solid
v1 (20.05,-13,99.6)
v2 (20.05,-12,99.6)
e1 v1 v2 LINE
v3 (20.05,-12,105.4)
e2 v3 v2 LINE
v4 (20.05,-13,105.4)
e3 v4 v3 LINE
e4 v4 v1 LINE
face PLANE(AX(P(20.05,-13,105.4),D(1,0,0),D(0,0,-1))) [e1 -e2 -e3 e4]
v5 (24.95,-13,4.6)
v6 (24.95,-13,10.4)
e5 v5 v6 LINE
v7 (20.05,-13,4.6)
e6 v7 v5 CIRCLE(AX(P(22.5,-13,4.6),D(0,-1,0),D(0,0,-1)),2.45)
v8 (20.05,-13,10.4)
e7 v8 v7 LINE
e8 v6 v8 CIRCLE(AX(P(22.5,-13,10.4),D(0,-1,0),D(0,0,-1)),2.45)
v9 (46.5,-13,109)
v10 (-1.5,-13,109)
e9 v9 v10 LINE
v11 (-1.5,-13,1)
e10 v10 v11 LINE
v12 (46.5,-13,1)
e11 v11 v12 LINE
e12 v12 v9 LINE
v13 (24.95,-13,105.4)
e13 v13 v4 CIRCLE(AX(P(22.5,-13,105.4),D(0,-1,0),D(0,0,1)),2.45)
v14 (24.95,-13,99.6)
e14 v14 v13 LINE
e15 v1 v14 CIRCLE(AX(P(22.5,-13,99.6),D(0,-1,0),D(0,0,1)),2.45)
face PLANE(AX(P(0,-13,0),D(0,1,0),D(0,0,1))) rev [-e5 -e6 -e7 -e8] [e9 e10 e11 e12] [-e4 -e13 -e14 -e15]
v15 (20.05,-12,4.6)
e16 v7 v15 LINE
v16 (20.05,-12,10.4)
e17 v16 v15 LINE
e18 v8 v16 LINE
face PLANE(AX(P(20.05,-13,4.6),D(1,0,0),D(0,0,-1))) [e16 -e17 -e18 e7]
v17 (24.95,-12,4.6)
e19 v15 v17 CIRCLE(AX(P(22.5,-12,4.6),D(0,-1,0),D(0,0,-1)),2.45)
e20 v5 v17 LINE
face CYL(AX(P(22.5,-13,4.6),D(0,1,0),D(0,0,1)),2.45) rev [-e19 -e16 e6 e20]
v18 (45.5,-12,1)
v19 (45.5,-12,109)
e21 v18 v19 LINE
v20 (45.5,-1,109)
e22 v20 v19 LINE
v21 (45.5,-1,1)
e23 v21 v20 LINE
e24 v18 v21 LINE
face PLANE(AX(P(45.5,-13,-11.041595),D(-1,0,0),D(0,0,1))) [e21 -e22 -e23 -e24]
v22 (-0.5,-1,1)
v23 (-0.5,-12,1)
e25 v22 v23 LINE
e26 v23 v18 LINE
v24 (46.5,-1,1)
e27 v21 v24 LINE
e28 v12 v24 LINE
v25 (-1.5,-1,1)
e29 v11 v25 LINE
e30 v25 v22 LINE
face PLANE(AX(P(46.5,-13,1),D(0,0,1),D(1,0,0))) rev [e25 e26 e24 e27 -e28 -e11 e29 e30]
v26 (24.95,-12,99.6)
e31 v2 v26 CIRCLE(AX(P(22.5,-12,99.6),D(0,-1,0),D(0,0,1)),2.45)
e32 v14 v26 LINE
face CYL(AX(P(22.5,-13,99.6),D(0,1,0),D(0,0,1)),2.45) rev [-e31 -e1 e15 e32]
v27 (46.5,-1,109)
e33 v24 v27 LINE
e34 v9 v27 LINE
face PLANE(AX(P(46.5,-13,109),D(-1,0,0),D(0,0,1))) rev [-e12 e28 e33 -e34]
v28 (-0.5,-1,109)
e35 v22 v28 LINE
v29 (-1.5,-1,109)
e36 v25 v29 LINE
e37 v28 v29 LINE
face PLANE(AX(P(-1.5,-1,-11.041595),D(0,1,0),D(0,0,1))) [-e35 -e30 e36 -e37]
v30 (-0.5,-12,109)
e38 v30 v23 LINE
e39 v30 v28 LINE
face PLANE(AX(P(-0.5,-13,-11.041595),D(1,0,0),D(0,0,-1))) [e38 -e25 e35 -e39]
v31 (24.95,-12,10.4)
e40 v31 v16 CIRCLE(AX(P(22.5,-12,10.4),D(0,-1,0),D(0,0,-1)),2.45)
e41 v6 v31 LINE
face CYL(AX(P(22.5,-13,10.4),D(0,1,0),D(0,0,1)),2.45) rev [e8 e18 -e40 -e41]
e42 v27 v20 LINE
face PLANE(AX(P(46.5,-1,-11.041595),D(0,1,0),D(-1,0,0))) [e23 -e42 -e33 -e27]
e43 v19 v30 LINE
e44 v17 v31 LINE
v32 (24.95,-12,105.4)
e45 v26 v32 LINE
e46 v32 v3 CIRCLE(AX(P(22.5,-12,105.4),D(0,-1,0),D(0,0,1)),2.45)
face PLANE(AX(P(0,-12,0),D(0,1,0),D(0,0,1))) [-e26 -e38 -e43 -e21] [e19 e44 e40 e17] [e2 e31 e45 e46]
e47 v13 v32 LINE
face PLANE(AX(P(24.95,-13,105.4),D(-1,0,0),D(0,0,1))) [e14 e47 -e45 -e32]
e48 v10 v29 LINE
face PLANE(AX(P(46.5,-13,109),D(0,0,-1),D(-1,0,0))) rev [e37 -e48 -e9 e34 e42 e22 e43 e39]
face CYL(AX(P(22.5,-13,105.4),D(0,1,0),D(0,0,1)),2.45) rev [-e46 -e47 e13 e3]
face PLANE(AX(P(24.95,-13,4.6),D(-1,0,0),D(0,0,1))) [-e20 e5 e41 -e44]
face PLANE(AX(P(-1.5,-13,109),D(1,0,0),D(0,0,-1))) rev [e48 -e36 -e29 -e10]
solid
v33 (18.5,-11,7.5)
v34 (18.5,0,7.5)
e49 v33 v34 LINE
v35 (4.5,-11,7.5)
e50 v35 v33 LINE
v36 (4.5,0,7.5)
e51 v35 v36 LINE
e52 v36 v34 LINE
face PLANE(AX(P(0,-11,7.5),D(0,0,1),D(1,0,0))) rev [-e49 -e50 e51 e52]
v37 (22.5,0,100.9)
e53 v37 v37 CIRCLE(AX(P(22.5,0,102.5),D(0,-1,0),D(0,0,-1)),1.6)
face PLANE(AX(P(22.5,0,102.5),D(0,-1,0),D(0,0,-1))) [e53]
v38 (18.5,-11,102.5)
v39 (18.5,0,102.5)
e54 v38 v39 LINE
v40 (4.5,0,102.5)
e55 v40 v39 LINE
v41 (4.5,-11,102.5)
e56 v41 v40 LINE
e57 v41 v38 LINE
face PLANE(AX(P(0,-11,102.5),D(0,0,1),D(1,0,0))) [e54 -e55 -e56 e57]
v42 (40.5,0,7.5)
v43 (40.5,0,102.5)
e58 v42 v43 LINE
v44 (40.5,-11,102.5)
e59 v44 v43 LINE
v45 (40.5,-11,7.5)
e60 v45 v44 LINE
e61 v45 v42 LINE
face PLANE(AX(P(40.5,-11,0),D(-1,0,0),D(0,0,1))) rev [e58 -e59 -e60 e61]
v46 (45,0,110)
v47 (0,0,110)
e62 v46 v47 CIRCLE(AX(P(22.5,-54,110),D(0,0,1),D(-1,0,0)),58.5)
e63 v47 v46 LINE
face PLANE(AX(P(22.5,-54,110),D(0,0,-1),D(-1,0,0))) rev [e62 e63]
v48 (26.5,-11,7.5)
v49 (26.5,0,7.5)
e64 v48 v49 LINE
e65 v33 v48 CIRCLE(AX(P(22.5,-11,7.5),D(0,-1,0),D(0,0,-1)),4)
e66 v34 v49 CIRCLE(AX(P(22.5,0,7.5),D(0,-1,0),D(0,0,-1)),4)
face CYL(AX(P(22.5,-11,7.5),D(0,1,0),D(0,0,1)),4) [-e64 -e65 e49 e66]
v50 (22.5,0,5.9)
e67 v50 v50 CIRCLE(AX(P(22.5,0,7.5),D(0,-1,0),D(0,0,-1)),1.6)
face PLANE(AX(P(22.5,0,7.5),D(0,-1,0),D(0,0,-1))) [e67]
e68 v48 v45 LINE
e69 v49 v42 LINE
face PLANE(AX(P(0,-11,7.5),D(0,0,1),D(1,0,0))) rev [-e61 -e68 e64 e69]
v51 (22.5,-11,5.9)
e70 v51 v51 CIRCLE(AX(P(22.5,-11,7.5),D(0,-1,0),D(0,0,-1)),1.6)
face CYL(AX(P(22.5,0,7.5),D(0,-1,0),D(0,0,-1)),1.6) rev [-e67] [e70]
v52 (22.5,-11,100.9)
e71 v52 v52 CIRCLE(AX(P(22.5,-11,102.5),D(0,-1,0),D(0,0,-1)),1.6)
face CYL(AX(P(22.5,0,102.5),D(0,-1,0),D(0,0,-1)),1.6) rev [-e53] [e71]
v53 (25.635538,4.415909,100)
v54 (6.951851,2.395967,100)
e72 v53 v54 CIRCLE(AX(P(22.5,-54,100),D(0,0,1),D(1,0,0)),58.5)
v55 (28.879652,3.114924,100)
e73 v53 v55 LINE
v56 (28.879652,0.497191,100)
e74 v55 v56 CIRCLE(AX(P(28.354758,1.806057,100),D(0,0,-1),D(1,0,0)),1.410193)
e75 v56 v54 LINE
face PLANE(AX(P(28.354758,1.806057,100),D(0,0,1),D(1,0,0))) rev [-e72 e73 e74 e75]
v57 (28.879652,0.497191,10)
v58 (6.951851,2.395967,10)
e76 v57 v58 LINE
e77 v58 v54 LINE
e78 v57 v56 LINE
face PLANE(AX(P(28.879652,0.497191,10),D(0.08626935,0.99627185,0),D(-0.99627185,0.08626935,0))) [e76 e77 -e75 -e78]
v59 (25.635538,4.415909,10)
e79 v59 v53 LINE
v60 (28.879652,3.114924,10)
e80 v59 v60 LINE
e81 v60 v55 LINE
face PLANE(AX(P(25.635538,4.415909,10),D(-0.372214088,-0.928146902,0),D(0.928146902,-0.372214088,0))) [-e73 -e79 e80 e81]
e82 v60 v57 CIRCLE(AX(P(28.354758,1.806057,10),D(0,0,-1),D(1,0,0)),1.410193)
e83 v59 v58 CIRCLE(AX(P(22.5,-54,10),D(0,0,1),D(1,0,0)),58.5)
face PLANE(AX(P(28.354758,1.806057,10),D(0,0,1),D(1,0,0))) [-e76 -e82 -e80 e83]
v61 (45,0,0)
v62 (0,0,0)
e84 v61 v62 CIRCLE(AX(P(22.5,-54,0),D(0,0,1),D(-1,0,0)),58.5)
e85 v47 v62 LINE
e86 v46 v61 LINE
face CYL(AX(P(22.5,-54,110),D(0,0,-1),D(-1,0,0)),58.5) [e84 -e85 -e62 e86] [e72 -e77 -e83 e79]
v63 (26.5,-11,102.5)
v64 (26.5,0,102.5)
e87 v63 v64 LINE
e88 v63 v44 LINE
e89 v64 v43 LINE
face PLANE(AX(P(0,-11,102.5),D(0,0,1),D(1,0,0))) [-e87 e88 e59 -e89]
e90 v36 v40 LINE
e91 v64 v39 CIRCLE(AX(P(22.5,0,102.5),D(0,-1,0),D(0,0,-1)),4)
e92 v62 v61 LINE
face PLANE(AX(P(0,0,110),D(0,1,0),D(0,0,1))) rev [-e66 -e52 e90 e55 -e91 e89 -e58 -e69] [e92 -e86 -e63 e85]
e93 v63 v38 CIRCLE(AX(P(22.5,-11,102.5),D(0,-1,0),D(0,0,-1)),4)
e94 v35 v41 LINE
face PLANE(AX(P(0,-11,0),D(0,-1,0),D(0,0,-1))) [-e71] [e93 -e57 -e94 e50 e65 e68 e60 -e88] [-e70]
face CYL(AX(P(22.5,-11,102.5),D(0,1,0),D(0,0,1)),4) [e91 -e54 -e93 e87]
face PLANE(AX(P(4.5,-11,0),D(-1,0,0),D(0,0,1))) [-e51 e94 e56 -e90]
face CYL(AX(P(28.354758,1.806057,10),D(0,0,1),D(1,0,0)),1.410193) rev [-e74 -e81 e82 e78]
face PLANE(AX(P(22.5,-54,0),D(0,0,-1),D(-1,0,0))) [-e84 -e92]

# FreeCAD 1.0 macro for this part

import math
import FreeCAD as App
import Part
import Sketcher
from FreeCAD import Vector
Q = App.Units.Quantity

doc = App.newDocument("Part")
body = doc.addObject("PartDesign::Body", "Body")

# Sketch on XY plane
sketch1 = body.newObject("Sketcher::SketchObject", "Sketch")
sketch1.AttachmentSupport = (doc.getObject("XY_Plane"), [""])
sketch1.MapMode = "FlatFace"
sketch1.addGeometry([
    Part.LineSegment(Vector(0, 0, 0), Vector(45, 0, 0)),
    Part.ArcOfCircle(Part.Circle(Vector(22, -54, 0), Vector(0, 0, 1), 58), math.radians(67), math.radians(113)),
], False)
sketch1.addConstraint([
    Sketcher.Constraint("Coincident", 0, 1, 1, 2),
    Sketcher.Constraint("Coincident", 1, 1, 0, 2),
    Sketcher.Constraint("Horizontal", 0),
    Sketcher.Constraint("Coincident", 0, 1, -1, 1),
    Sketcher.Constraint("Radius", 1, Q("58.5 mm")),
    Sketcher.Constraint("DistanceX", 0, 1, 0, 2, Q("45 mm")),
])
pad1 = body.newObject("PartDesign::Pad", "Pad")
pad1.Profile = sketch1
pad1.Length = 110

# Sketch on XZ plane
sketch2 = body.newObject("Sketcher::SketchObject", "Sketch001")
sketch2.AttachmentSupport = (doc.getObject("XZ_Plane"), [""])
sketch2.MapMode = "FlatFace"
sketch2.addGeometry([
    Part.LineSegment(Vector(4.5, 102.5, 0), Vector(4.5, 7.5, 0)),  # 0
    Part.LineSegment(Vector(4.5, 7.5, 0), Vector(18.5, 7.5, 0)),  # 1
    Part.ArcOfCircle(Part.Circle(Vector(22.5, 7.5, 0), Vector(0, 0, 1), 4), math.radians(180), math.radians(360)),  # 2
    Part.LineSegment(Vector(26.5, 7.5, 0), Vector(40.5, 7.5, 0)),  # 3
    Part.LineSegment(Vector(40.5, 7.5, 0), Vector(40.5, 102.5, 0)),  # 4
    Part.LineSegment(Vector(40.5, 102.5, 0), Vector(26.5, 102.5, 0)),  # 5
    Part.ArcOfCircle(Part.Circle(Vector(22.5, 102.5, 0), Vector(0, 0, 1), 4), math.radians(0), math.radians(180)),  # 6
    Part.LineSegment(Vector(18.5, 102.5, 0), Vector(4.5, 102.5, 0)),  # 7
], False)
sketch2.addConstraint([
    Sketcher.Constraint("Coincident", 0, 2, 1, 1),
    Sketcher.Constraint("Coincident", 1, 2, 2, 1),
    Sketcher.Constraint("Coincident", 2, 2, 3, 1),
    Sketcher.Constraint("Coincident", 3, 2, 4, 1),
    Sketcher.Constraint("Coincident", 4, 2, 5, 1),
    Sketcher.Constraint("Coincident", 5, 2, 6, 1),
    Sketcher.Constraint("Coincident", 6, 2, 7, 1),
    Sketcher.Constraint("Coincident", 7, 2, 0, 1),
    Sketcher.Constraint("Vertical", 0),
    Sketcher.Constraint("Horizontal", 1),
    Sketcher.Constraint("Horizontal", 3),
    Sketcher.Constraint("Vertical", 4),
    Sketcher.Constraint("Horizontal", 5),
    Sketcher.Constraint("Horizontal", 7),
    Sketcher.Constraint("Equal", 2, 6),
    Sketcher.Constraint("Horizontal", 2, 3, 0, 2),
    Sketcher.Constraint("Horizontal", 1, 2, 2, 2),
    Sketcher.Constraint("Horizontal", 6, 3, 4, 2),
    Sketcher.Constraint("Horizontal", 5, 2, 6, 2),
    Sketcher.Constraint("Vertical", 2, 3, 6, 3),
    Sketcher.Constraint("Equal", 1, 3),
    Sketcher.Constraint("Radius", 2, Q("4 mm")),
    Sketcher.Constraint("DistanceX", 1, 1, 1, 2, Q("14 mm")),
    Sketcher.Constraint("DistanceY", 0, 2, 0, 1, Q("95 mm")),
    Sketcher.Constraint("DistanceX", -1, 1, 2, 3, Q("22.5 mm")),
    Sketcher.Constraint("DistanceY", -1, 1, 2, 3, Q("7.5 mm")),
])
pad2 = body.newObject("PartDesign::Pad", "Pad001")
pad2.Profile = sketch2
pad2.Length = 11

# Sketch on XZ plane
sketch3 = body.newObject("Sketcher::SketchObject", "Sketch002")
sketch3.AttachmentSupport = (doc.getObject("XZ_Plane"), [""])
sketch3.MapMode = "FlatFace"
sketch3.AttachmentOffset = App.Placement(Vector(0, 0, 11), App.Rotation())
sketch3.addGeometry([
    Part.Circle(Vector(22.5, 102.5, 0), Vector(0, 0, 1), 1.6),
    Part.Circle(Vector(22.5, 7.5, 0), Vector(0, 0, 1), 1.6),
], False)
sketch3.addConstraint([
    Sketcher.Constraint("Equal", 0, 1),
    Sketcher.Constraint("Vertical", 0, 3, 1, 3),
    Sketcher.Constraint("Diameter", 0, Q("3.2 mm")),
    Sketcher.Constraint("DistanceY", 1, 3, 0, 3, Q("95 mm")),
    Sketcher.Constraint("DistanceX", -1, 1, 0, 3, Q("22.5 mm")),
    Sketcher.Constraint("DistanceY", -1, 1, 0, 3, Q("102.5 mm")),
])
pocket1 = body.newObject("PartDesign::Pocket", "Pocket")
pocket1.Profile = sketch3
pocket1.Length = 11

# Sketch on XY plane
sketch4 = body.newObject("Sketcher::SketchObject", "Sketch003")
sketch4.AttachmentSupport = (doc.getObject("XY_Plane"), [""])
sketch4.MapMode = "FlatFace"
sketch4.AttachmentOffset = App.Placement(Vector(0, 0, 55), App.Rotation())
sketch4.addGeometry([
    Part.LineSegment(Vector(25.6, 4.4, 0), Vector(28.9, 3.1, 0)),  # 0
    Part.ArcOfCircle(Part.Circle(Vector(28.4, 1.8, 0), Vector(0, 0, 1), 1.4), math.radians(-68), math.radians(68)),  # 1
    Part.LineSegment(Vector(28.9, 0.5, 0), Vector(5.4, 2.5, 0)),  # 2
    Part.LineSegment(Vector(5.4, 2.5, 0), Vector(21.7, 7.8, 0)),  # 3
    Part.LineSegment(Vector(21.7, 7.8, 0), Vector(25.6, 4.4, 0)),  # 4
], False)
sketch4.addConstraint([
    Sketcher.Constraint("Tangent", 0, 2, 1, 2),
    Sketcher.Constraint("Coincident", 1, 1, 2, 1),
    Sketcher.Constraint("Coincident", 2, 2, 3, 1),
    Sketcher.Constraint("Coincident", 3, 2, 4, 1),
    Sketcher.Constraint("Coincident", 4, 2, 0, 1),
    Sketcher.Constraint("Vertical", 0, 2, 1, 1),
    Sketcher.Constraint("Radius", 1, Q("1.410193 mm")),
    Sketcher.Constraint("Distance", 0, Q("3.49526 mm")),
    Sketcher.Constraint("DistanceX", -1, 1, 1, 3, Q("28.354758 mm")),
    Sketcher.Constraint("DistanceY", -1, 1, 1, 1, Q("0.497191 mm")),
    Sketcher.Constraint("DistanceY", -1, 1, 2, 2, Q("2.531348 mm")),
    Sketcher.Constraint("DistanceX", -1, 1, 3, 2, Q("21.708969 mm")),
    Sketcher.Constraint("DistanceY", -1, 1, 4, 2, Q("4.415909 mm")),
    Sketcher.Constraint("DistanceX", 2, 2, 0, 2, Q("23.491239 mm")),
    Sketcher.Constraint("DistanceY", 1, 3, 3, 2, Q("5.94813 mm")),
])
pocket2 = body.newObject("PartDesign::Pocket", "Pocket001")
pocket2.Profile = sketch4
pocket2.Type = "TwoLengths"
pocket2.Length = 45
pocket2.Length2 = 45
body2 = doc.addObject("PartDesign::Body", "Body001")

# Sketch on XZ plane
sketch5 = body2.newObject("Sketcher::SketchObject", "Sketch004")
sketch5.AttachmentSupport = (doc.getObject("XZ_Plane001"), [""])
sketch5.MapMode = "FlatFace"
sketch5.AttachmentOffset = App.Placement(Vector(0, 0, 12), App.Rotation())
sketch5.addGeometry([
    Part.LineSegment(Vector(46.5, 1, 0), Vector(46.5, 109, 0)),  # 0
    Part.LineSegment(Vector(46.5, 109, 0), Vector(-1.5, 109, 0)),  # 1
    Part.LineSegment(Vector(-1.5, 109, 0), Vector(-1.5, 1, 0)),  # 2
    Part.LineSegment(Vector(-1.5, 1, 0), Vector(46.5, 1, 0)),  # 3
    Part.LineSegment(Vector(20.1, 99.6, 0), Vector(20.1, 105.4, 0)),  # 4
    Part.ArcOfCircle(Part.Circle(Vector(22.5, 105.4, 0), Vector(0, 0, 1), 2.5), math.radians(0), math.radians(180)),  # 5
    Part.LineSegment(Vector(24.9, 105.4, 0), Vector(24.9, 99.6, 0)),  # 6
    Part.ArcOfCircle(Part.Circle(Vector(22.5, 99.6, 0), Vector(0, 0, 1), 2.5), math.radians(180), math.radians(360)),  # 7
    Part.ArcOfCircle(Part.Circle(Vector(22.5, 4.6, 0), Vector(0, 0, 1), 2.5), math.radians(180), math.radians(360)),  # 8
    Part.LineSegment(Vector(20.1, 4.6, 0), Vector(20.1, 10.4, 0)),  # 9
    Part.ArcOfCircle(Part.Circle(Vector(22.5, 10.4, 0), Vector(0, 0, 1), 2.5), math.radians(0), math.radians(180)),  # 10
    Part.LineSegment(Vector(24.9, 10.4, 0), Vector(24.9, 4.6, 0)),  # 11
], False)
sketch5.addConstraint([
    Sketcher.Constraint("Coincident", 0, 2, 1, 1),
    Sketcher.Constraint("Coincident", 1, 2, 2, 1),
    Sketcher.Constraint("Coincident", 2, 2, 3, 1),
    Sketcher.Constraint("Coincident", 3, 2, 0, 1),
    Sketcher.Constraint("Tangent", 4, 2, 5, 2),
    Sketcher.Constraint("Tangent", 5, 1, 6, 1),
    Sketcher.Constraint("Tangent", 6, 2, 7, 2),
    Sketcher.Constraint("Tangent", 7, 1, 4, 1),
    Sketcher.Constraint("Tangent", 8, 1, 9, 1),
    Sketcher.Constraint("Tangent", 9, 2, 10, 2),
    Sketcher.Constraint("Tangent", 10, 1, 11, 1),
    Sketcher.Constraint("Tangent", 11, 2, 8, 2),
    Sketcher.Constraint("Vertical", 0),
    Sketcher.Constraint("Horizontal", 1),
    Sketcher.Constraint("Vertical", 2),
    Sketcher.Constraint("Horizontal", 3),
    Sketcher.Constraint("Vertical", 4),
    Sketcher.Constraint("Vertical", 6),
    Sketcher.Constraint("Vertical", 9),
    Sketcher.Constraint("Vertical", 11),
    Sketcher.Constraint("Equal", 7, 8),
    Sketcher.Constraint("Vertical", 7, 3, 8, 3),
    Sketcher.Constraint("Equal", 6, 9),
    Sketcher.Constraint("DistanceX", 1, 2, 1, 1, Q("48 mm")),
    Sketcher.Constraint("DistanceY", 0, 1, 0, 2, Q("108 mm")),
    Sketcher.Constraint("Radius", 5, Q("2.45 mm")),
    Sketcher.Constraint("DistanceY", 4, 1, 4, 2, Q("5.8 mm")),
    Sketcher.Constraint("DistanceY", -1, 1, 0, 2, Q("109 mm")),
    Sketcher.Constraint("DistanceY", 8, 3, 7, 3, Q("95 mm")),
    Sketcher.Constraint("DistanceX", 5, 3, 0, 2, Q("24 mm")),
    Sketcher.Constraint("DistanceX", -1, 1, 5, 3, Q("22.5 mm")),
    Sketcher.Constraint("DistanceY", -1, 1, 5, 3, Q("105.4 mm")),
])
pad3 = body2.newObject("PartDesign::Pad", "Pad002")
pad3.Profile = sketch5
pad3.Length = 1

# Sketch on XY plane
sketch6 = body2.newObject("Sketcher::SketchObject", "Sketch005")
sketch6.AttachmentSupport = (doc.getObject("XY_Plane001"), [""])
sketch6.MapMode = "FlatFace"
sketch6.AttachmentOffset = App.Placement(Vector(0, 0, 109), App.Rotation())
sketch6.addGeometry([
    Part.LineSegment(Vector(-1.5, -1, 0), Vector(-1.5, -13, 0)),  # 0
    Part.LineSegment(Vector(-1.5, -13, 0), Vector(-0.5, -13, 0)),  # 1
    Part.LineSegment(Vector(-0.5, -13, 0), Vector(-0.5, -1, 0)),  # 2
    Part.LineSegment(Vector(-0.5, -1, 0), Vector(-1.5, -1, 0)),  # 3
    Part.LineSegment(Vector(45.5, -1, 0), Vector(45.5, -13, 0)),  # 4
    Part.LineSegment(Vector(45.5, -13, 0), Vector(46.5, -13, 0)),  # 5
    Part.LineSegment(Vector(46.5, -13, 0), Vector(46.5, -1, 0)),  # 6
    Part.LineSegment(Vector(46.5, -1, 0), Vector(45.5, -1, 0)),  # 7
], False)
sketch6.addConstraint([
    Sketcher.Constraint("Coincident", 0, 2, 1, 1),
    Sketcher.Constraint("Coincident", 1, 2, 2, 1),
    Sketcher.Constraint("Coincident", 2, 2, 3, 1),
    Sketcher.Constraint("Coincident", 3, 2, 0, 1),
    Sketcher.Constraint("Coincident", 4, 2, 5, 1),
    Sketcher.Constraint("Coincident", 5, 2, 6, 1),
    Sketcher.Constraint("Coincident", 6, 2, 7, 1),
    Sketcher.Constraint("Coincident", 7, 2, 4, 1),
    Sketcher.Constraint("Vertical", 0),
    Sketcher.Constraint("Horizontal", 1),
    Sketcher.Constraint("Vertical", 2),
    Sketcher.Constraint("Horizontal", 3),
    Sketcher.Constraint("Vertical", 4),
    Sketcher.Constraint("Horizontal", 5),
    Sketcher.Constraint("Vertical", 6),
    Sketcher.Constraint("Horizontal", 7),
    Sketcher.Constraint("Horizontal", 1, 2, 4, 2),
    Sketcher.Constraint("Horizontal", 3, 2, 6, 2),
    Sketcher.Constraint("Equal", 3, 5),
    Sketcher.Constraint("DistanceX", 1, 1, 1, 2, Q("1 mm")),
    Sketcher.Constraint("DistanceY", 0, 2, 0, 1, Q("12 mm")),
    Sketcher.Constraint("DistanceY", 0, 2, -1, 1, Q("13 mm")),
    Sketcher.Constraint("DistanceX", 1, 2, 4, 2, Q("46 mm")),
    Sketcher.Constraint("DistanceX", 0, 2, -1, 1, Q("1.5 mm")),
])
pad4 = body2.newObject("PartDesign::Pad", "Pad003")
pad4.Profile = sketch6
pad4.Length = 108
pad4.Reversed = True

doc.recompute()
